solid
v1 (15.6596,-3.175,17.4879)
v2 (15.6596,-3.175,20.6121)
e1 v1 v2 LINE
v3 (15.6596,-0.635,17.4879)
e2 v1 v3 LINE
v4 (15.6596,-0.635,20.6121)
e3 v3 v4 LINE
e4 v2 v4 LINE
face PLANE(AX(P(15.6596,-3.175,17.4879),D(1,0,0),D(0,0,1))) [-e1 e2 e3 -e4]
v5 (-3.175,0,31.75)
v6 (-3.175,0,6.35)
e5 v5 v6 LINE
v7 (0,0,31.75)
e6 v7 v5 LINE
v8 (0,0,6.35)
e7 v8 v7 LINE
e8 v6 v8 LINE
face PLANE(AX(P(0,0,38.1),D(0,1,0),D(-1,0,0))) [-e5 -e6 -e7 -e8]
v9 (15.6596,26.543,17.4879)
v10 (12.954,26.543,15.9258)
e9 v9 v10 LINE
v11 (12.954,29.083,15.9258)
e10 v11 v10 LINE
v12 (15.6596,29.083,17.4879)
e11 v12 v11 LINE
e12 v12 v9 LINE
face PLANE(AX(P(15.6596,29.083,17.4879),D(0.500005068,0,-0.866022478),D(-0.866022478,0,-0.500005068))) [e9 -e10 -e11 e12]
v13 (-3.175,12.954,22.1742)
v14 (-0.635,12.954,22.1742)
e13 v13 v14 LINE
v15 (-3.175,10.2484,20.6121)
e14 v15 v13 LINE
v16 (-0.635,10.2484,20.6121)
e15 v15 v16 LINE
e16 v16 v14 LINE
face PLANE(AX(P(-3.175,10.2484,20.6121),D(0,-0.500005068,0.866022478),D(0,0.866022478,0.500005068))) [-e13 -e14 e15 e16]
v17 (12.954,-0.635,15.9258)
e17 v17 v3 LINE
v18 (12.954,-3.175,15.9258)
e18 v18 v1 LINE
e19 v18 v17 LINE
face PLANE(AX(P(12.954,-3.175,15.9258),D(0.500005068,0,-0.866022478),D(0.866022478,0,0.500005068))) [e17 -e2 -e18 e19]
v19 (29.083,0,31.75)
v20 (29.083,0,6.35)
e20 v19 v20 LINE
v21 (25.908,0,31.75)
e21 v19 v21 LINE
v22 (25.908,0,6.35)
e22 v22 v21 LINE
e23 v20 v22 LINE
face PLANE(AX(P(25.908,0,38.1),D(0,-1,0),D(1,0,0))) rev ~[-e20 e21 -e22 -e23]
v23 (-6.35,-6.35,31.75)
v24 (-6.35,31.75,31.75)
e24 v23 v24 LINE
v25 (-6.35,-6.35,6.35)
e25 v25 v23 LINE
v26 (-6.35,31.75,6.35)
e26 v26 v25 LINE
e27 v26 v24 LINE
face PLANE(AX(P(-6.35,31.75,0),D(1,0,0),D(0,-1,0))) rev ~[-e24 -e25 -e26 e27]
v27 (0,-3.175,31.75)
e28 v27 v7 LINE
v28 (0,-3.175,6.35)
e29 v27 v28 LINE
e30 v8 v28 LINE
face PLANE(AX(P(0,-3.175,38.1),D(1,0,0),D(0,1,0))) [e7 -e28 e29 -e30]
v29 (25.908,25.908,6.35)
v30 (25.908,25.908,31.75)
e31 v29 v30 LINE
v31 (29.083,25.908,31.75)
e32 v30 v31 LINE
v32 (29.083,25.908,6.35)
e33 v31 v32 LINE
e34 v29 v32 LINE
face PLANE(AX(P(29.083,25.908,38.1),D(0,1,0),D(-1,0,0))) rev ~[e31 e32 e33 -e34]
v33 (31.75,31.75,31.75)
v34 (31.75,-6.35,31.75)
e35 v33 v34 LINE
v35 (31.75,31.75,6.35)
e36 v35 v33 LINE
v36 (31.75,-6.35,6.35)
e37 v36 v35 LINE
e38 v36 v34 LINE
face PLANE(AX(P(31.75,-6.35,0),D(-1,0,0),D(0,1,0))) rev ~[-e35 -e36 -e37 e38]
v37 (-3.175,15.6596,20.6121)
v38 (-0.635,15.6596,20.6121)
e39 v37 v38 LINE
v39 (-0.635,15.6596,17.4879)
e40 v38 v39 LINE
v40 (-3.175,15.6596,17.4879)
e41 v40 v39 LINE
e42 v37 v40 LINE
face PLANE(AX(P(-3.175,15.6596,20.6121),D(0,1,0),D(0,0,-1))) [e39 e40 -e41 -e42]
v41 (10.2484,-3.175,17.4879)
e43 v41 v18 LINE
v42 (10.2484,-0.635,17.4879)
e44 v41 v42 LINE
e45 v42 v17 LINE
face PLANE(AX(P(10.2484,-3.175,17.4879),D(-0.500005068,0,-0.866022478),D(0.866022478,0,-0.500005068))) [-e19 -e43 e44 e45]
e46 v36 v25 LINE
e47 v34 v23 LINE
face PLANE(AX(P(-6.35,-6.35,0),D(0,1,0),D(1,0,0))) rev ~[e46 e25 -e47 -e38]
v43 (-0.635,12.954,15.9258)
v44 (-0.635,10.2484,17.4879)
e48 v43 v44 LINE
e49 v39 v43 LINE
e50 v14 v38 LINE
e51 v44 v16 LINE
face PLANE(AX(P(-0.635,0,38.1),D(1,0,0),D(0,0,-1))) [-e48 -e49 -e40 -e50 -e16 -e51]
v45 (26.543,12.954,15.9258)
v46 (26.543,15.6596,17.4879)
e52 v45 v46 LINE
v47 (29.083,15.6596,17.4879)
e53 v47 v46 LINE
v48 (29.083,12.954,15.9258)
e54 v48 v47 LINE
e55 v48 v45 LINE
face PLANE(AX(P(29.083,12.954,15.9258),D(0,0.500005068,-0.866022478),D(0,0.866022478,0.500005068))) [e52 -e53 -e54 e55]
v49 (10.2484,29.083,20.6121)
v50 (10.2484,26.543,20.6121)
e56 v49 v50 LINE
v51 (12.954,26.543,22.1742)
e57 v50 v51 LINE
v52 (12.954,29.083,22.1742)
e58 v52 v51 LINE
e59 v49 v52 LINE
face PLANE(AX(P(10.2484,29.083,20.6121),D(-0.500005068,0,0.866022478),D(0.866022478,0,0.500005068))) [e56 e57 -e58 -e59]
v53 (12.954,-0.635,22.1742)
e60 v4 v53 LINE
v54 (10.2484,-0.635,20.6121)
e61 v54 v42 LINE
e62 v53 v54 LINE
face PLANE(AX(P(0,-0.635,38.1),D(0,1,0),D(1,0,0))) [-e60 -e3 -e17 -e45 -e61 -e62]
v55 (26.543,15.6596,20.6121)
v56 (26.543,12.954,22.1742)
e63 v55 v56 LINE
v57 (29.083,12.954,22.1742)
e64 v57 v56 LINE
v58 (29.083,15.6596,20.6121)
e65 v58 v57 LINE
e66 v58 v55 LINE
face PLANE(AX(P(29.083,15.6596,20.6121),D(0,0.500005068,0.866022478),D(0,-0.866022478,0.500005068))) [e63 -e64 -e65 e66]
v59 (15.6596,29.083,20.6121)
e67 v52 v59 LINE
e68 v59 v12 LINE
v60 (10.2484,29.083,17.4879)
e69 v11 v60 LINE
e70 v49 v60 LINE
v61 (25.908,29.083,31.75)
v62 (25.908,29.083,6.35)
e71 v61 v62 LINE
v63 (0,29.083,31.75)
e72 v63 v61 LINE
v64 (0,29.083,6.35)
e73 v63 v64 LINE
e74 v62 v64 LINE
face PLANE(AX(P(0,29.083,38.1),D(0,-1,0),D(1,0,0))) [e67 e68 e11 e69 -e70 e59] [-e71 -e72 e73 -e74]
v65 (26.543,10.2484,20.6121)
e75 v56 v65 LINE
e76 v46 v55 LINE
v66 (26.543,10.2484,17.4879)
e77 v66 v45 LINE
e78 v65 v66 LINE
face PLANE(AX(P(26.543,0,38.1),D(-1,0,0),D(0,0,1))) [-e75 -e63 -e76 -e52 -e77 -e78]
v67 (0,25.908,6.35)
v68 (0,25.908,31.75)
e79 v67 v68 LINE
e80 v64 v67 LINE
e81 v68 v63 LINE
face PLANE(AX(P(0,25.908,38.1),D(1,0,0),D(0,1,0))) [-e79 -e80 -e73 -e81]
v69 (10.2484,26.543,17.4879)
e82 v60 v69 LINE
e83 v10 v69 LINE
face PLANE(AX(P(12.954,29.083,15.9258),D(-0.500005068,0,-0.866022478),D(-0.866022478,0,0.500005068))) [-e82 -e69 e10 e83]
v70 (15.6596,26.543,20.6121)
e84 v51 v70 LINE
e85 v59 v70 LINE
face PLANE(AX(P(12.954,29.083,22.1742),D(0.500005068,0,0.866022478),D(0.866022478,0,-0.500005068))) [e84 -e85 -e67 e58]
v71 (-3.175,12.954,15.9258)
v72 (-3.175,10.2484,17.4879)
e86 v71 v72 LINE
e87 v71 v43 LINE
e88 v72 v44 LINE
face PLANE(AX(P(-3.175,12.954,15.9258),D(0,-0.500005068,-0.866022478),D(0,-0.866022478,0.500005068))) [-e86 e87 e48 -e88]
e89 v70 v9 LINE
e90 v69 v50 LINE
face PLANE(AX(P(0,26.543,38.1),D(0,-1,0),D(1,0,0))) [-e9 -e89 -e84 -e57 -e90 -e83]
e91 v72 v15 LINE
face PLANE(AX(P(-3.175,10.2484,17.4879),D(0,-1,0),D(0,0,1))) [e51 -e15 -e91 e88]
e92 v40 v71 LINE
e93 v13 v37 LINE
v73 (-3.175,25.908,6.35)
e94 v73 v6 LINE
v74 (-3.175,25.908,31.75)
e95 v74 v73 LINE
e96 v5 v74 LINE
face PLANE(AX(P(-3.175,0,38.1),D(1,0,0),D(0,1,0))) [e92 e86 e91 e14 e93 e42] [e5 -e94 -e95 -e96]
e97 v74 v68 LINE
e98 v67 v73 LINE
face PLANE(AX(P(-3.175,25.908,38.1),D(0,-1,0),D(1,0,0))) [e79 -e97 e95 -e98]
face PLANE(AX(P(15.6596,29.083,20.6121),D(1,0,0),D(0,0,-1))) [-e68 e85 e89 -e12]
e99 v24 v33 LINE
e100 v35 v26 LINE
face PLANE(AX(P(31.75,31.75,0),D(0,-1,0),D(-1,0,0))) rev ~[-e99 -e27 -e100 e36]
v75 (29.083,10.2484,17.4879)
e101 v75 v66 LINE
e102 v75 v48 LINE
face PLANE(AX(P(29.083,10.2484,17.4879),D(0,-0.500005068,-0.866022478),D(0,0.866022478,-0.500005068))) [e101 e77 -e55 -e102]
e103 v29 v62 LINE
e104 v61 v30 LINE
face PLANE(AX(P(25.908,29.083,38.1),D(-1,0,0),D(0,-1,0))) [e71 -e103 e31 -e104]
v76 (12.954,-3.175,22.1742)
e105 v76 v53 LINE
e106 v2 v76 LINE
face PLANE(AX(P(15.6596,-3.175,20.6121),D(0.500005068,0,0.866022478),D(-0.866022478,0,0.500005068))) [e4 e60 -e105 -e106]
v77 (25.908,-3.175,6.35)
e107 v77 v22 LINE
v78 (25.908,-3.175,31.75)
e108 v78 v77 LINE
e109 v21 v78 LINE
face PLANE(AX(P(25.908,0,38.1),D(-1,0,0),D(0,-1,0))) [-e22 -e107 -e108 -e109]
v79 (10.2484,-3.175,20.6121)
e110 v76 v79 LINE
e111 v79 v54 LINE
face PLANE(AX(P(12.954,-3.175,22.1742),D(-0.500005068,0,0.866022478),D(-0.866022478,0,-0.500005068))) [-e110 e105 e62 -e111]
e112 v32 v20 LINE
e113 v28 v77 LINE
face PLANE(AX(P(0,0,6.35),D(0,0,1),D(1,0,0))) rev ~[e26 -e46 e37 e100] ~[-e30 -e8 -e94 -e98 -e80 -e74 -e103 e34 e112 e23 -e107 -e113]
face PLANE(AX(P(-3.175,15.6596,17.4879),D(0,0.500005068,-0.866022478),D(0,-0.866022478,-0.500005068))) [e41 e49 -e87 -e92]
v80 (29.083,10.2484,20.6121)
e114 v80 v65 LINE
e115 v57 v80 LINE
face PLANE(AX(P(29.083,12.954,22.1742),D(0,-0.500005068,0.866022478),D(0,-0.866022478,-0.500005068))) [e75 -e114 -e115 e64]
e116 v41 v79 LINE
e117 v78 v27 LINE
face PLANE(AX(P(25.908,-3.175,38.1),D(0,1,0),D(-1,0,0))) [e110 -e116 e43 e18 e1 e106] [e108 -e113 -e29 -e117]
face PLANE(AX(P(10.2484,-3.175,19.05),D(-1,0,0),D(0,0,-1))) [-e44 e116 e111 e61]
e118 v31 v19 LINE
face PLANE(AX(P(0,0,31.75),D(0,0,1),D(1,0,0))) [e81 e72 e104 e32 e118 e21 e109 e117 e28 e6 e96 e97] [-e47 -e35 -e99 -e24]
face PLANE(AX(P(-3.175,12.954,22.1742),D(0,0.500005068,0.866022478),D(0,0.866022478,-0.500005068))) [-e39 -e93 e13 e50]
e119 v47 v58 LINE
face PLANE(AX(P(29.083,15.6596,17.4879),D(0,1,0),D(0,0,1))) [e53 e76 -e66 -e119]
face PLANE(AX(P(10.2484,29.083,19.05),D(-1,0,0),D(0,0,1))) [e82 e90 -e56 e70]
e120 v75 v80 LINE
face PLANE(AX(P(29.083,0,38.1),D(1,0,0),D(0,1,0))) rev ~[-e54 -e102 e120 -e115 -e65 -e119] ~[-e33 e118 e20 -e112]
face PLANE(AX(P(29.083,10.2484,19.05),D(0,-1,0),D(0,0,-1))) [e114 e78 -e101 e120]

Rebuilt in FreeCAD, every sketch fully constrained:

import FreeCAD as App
import Part
import Sketcher
from FreeCAD import Vector
Q = App.Units.Quantity


def add_polygon(sketch, points):
    """Adds a closed chain of lines whose ends are joined by coincident constraints."""
    first, n = sketch.GeometryCount, len(points)
    for a, b in zip(points, points[1:] + points[:1]):
        sketch.addGeometry(Part.LineSegment(App.Vector(*a, 0), App.Vector(*b, 0)), False)
    for i in range(n):
        sketch.addConstraint(Sketcher.Constraint("Coincident", first + i, 2, first + (i + 1) % n, 1))

doc = App.newDocument("Part")
body = doc.addObject("PartDesign::Body", "Body")

# Sketch on XY plane
sketch1 = body.newObject("Sketcher::SketchObject", "Sketch")
sketch1.AttachmentSupport = (doc.getObject("XY_Plane"), [""])
sketch1.MapMode = "FlatFace"
add_polygon(sketch1, [(-6, 32), (-6, -6), (32, -6), (32, 32)])  # lines 0-3
add_polygon(sketch1, [(26, 0), (0, 0), (0, 26), (26, 26)])  # lines 4-7
sketch1.addConstraint([
    Sketcher.Constraint("Vertical", 0),
    Sketcher.Constraint("Horizontal", 1),
    Sketcher.Constraint("Vertical", 2),
    Sketcher.Constraint("Horizontal", 3),
    Sketcher.Constraint("Horizontal", 4),
    Sketcher.Constraint("Vertical", 5),
    Sketcher.Constraint("Horizontal", 6),
    Sketcher.Constraint("Vertical", 7),
    Sketcher.Constraint("Coincident", 4, 2, -1, 1),
    Sketcher.Constraint("Equal", 3, 0),
    Sketcher.Constraint("Equal", 6, 5),
    Sketcher.Constraint("DistanceX", 1, 1, 1, 2, Q("1.5 in")),
    Sketcher.Constraint("DistanceX", 4, 2, 4, 1, Q("1.02 in")),
    Sketcher.Constraint("DistanceX", 0, 2, -1, 1, Q("0.25 in")),
    Sketcher.Constraint("DistanceY", 0, 2, -1, 1, Q("0.25 in")),
])
pad1 = body.newObject("PartDesign::Pad", "Pad")
pad1.Profile = sketch1
pad1.Length = Q("1.5 in")

# Sketch on XY plane
sketch2 = body.newObject("Sketcher::SketchObject", "Sketch001")
sketch2.AttachmentSupport = (doc.getObject("XY_Plane"), [""])
sketch2.MapMode = "FlatFace"
sketch2.AttachmentOffset = App.Placement(Vector(0, 0, 1.5 * 25.4), App.Rotation())
add_polygon(sketch2, [(25.9, 0), (0, 0), (0, -3.2), (25.9, -3.2)])  # lines 0-3
add_polygon(sketch2, [(-3.2, 0), (0, 0), (0, 25.9), (-3.2, 25.9)])  # lines 4-7
add_polygon(sketch2, [(25.9, 25.9), (25.9, 0), (29.1, 0), (29.1, 25.9)])  # lines 8-11
add_polygon(sketch2, [(0, 29.1), (0, 25.9), (25.9, 25.9), (25.9, 29.1)])  # lines 12-15
sketch2.addConstraint([
    Sketcher.Constraint("Horizontal", 0),
    Sketcher.Constraint("Vertical", 1),
    Sketcher.Constraint("Horizontal", 2),
    Sketcher.Constraint("Vertical", 3),
    Sketcher.Constraint("Horizontal", 4),
    Sketcher.Constraint("Vertical", 5),
    Sketcher.Constraint("Horizontal", 6),
    Sketcher.Constraint("Vertical", 7),
    Sketcher.Constraint("Vertical", 8),
    Sketcher.Constraint("Horizontal", 9),
    Sketcher.Constraint("Vertical", 10),
    Sketcher.Constraint("Horizontal", 11),
    Sketcher.Constraint("Vertical", 12),
    Sketcher.Constraint("Horizontal", 13),
    Sketcher.Constraint("Vertical", 14),
    Sketcher.Constraint("Horizontal", 15),
    Sketcher.Constraint("Coincident", 0, 2, -1, 1),
    Sketcher.Constraint("Coincident", 4, 2, -1, 1),
    Sketcher.Constraint("Coincident", 8, 2, 3, 2),
    Sketcher.Constraint("Coincident", 12, 2, 5, 2),
    Sketcher.Constraint("Coincident", 13, 2, 11, 2),
    Sketcher.Constraint("Equal", 6, 9),
    Sketcher.Constraint("Equal", 11, 1),
    Sketcher.Constraint("Equal", 15, 5),
    Sketcher.Constraint("Equal", 3, 12),
    Sketcher.Constraint("DistanceX", 4, 1, 4, 2, Q("0.125 in")),
    Sketcher.Constraint("DistanceX", 0, 2, 0, 1, Q("1.02 in")),
])
pocket1 = body.newObject("PartDesign::Pocket", "Pocket")
pocket1.Profile = sketch2
pocket1.Length = Q("1.5 in")

# Sketch on XZ plane
sketch3 = body.newObject("Sketcher::SketchObject", "Sketch002")
sketch3.AttachmentSupport = (doc.getObject("XZ_Plane"), [""])
sketch3.MapMode = "FlatFace"
sketch3.AttachmentOffset = App.Placement(Vector(0, 0, -1.145 * 25.4), App.Rotation())
add_polygon(sketch3, [(10.2, 20.6), (10.2, 17.5), (13, 15.9), (15.7, 17.5), (15.7, 20.6), (13, 22.2)])  # lines 0-5
sketch3.addConstraint([
    Sketcher.Constraint("Vertical", 0),
    Sketcher.Constraint("Vertical", 3),
    Sketcher.Constraint("Parallel", 1, 4),
    Sketcher.Constraint("Parallel", 2, 5),
    Sketcher.Constraint("Horizontal", 0, 2, 2, 2),
    Sketcher.Constraint("Horizontal", 3, 2, 5, 2),
    Sketcher.Constraint("Vertical", 1, 2, 4, 2),
    Sketcher.Constraint("DistanceY", 0, 2, 0, 1, Q("0.123 in")),
    Sketcher.Constraint("Distance", 1, Q("0.123 in")),
    Sketcher.Constraint("Angle", 1, Q("-30.0003 deg")),
    Sketcher.Constraint("DistanceX", -1, 1, 1, 2, Q("0.51 in")),
    Sketcher.Constraint("DistanceY", -1, 1, 1, 2, Q("0.627 in")),
])
pad2 = body.newObject("PartDesign::Pad", "Pad001")
pad2.Profile = sketch3
pad2.Length = Q("0.1 in")

# Sketch on YZ plane
sketch4 = body.newObject("Sketcher::SketchObject", "Sketch003")
sketch4.AttachmentSupport = (doc.getObject("YZ_Plane"), [""])
sketch4.MapMode = "FlatFace"
sketch4.AttachmentOffset = App.Placement(Vector(0, 0, -0.125 * 25.4), App.Rotation())
add_polygon(sketch4, [(10.2, 17.5), (13, 15.9), (15.7, 17.5), (15.7, 20.6), (13, 22.2), (10.2, 20.6)])  # lines 0-5
sketch4.addConstraint([
    Sketcher.Constraint("Vertical", 2),
    Sketcher.Constraint("Vertical", 5),
    Sketcher.Constraint("Parallel", 0, 3),
    Sketcher.Constraint("Parallel", 1, 4),
    Sketcher.Constraint("Horizontal", 2, 2, 4, 2),
    Sketcher.Constraint("Horizontal", 1, 2, 5, 2),
    Sketcher.Constraint("Vertical", 0, 2, 3, 2),
    Sketcher.Constraint("DistanceY", 2, 1, 2, 2, Q("0.123 in")),
    Sketcher.Constraint("DistanceX", -1, 1, 0, 2, Q("0.51 in")),
    Sketcher.Constraint("Distance", 0, Q("0.123 in")),
    Sketcher.Constraint("Angle", 0, Q("-30.0003 deg")),
    Sketcher.Constraint("DistanceY", -1, 1, 0, 2, Q("0.627 in")),
])
pad3 = body.newObject("PartDesign::Pad", "Pad002")
pad3.Profile = sketch4
pad3.Length = Q("0.1 in")

# Sketch on XZ plane
sketch5 = body.newObject("Sketcher::SketchObject", "Sketch004")
sketch5.AttachmentSupport = (doc.getObject("XZ_Plane"), [""])
sketch5.MapMode = "FlatFace"
sketch5.AttachmentOffset = App.Placement(Vector(0, 0, 0.125 * 25.4), App.Rotation())
add_polygon(sketch5, [(10.2, 17.5), (10.2, 20.6), (13, 22.2), (15.7, 20.6), (15.7, 17.5), (13, 15.9)])  # lines 0-5
sketch5.addConstraint([
    Sketcher.Constraint("Vertical", 0),
    Sketcher.Constraint("Vertical", 3),
    Sketcher.Constraint("Parallel", 1, 4),
    Sketcher.Constraint("Parallel", 2, 5),
    Sketcher.Constraint("Horizontal", 0, 2, 2, 2),
    Sketcher.Constraint("Horizontal", 3, 2, 5, 2),
    Sketcher.Constraint("Vertical", 1, 2, 4, 2),
    Sketcher.Constraint("DistanceY", 0, 1, 0, 2, Q("0.123 in")),
    Sketcher.Constraint("DistanceX", -1, 1, 1, 2, Q("0.51 in")),
    Sketcher.Constraint("Distance", 1, Q("0.123 in")),
    Sketcher.Constraint("Angle", 1, Q("30.0003 deg")),
    Sketcher.Constraint("DistanceY", -1, 1, 1, 2, Q("0.873 in")),
])
pad4 = body.newObject("PartDesign::Pad", "Pad003")
pad4.Profile = sketch5
pad4.Length = Q("0.1 in")
pad4.Reversed = True

# Sketch on YZ plane
sketch6 = body.newObject("Sketcher::SketchObject", "Sketch005")
sketch6.AttachmentSupport = (doc.getObject("YZ_Plane"), [""])
sketch6.MapMode = "FlatFace"
sketch6.AttachmentOffset = App.Placement(Vector(0, 0, 1.145 * 25.4), App.Rotation())
add_polygon(sketch6, [(10.2, 17.5), (10.2, 20.6), (13, 22.2), (15.7, 20.6), (15.7, 17.5), (13, 15.9)])  # lines 0-5
sketch6.addConstraint([
    Sketcher.Constraint("Vertical", 0),
    Sketcher.Constraint("Vertical", 3),
    Sketcher.Constraint("Parallel", 1, 4),
    Sketcher.Constraint("Parallel", 2, 5),
    Sketcher.Constraint("Horizontal", 0, 2, 2, 2),
    Sketcher.Constraint("Horizontal", 3, 2, 5, 2),
    Sketcher.Constraint("Vertical", 1, 2, 4, 2),
    Sketcher.Constraint("DistanceY", 0, 1, 0, 2, Q("0.123 in")),
    Sketcher.Constraint("DistanceX", -1, 1, 1, 2, Q("0.51 in")),
    Sketcher.Constraint("Distance", 1, Q("0.123 in")),
    Sketcher.Constraint("Angle", 1, Q("30.0003 deg")),
    Sketcher.Constraint("DistanceY", -1, 1, 1, 2, Q("0.873 in")),
])
pad5 = body.newObject("PartDesign::Pad", "Pad004")
pad5.Profile = sketch6
pad5.Length = Q("0.1 in")
pad5.Reversed = True

# Sketch on XY plane
sketch7 = body.newObject("Sketcher::SketchObject", "Sketch006")
sketch7.AttachmentSupport = (doc.getObject("XY_Plane"), [""])
sketch7.MapMode = "FlatFace"
sketch7.AttachmentOffset = App.Placement(Vector(0, 0, 1.5 * 25.4), App.Rotation())
add_polygon(sketch7, [(-6.3, 31.8), (-6.3, -6.3), (31.8, -6.3), (31.8, 31.8)])  # lines 0-3
add_polygon(sketch7, [(-3.2, 25.9), (0, 25.9), (0, 29.1), (25.9, 29.1), (25.9, 25.9), (29.1, 25.9), (29.1, 0), (25.9, 0), (25.9, -3.2), (0, -3.2), (0, 0), (-3.2, 0)])  # lines 4-15
sketch7.addConstraint([
    Sketcher.Constraint("Vertical", 0),
    Sketcher.Constraint("Horizontal", 1),
    Sketcher.Constraint("Vertical", 2),
    Sketcher.Constraint("Horizontal", 3),
    Sketcher.Constraint("Horizontal", 4),
    Sketcher.Constraint("Vertical", 5),
    Sketcher.Constraint("Horizontal", 6),
    Sketcher.Constraint("Vertical", 7),
    Sketcher.Constraint("Horizontal", 8),
    Sketcher.Constraint("Vertical", 9),
    Sketcher.Constraint("Horizontal", 10),
    Sketcher.Constraint("Vertical", 11),
    Sketcher.Constraint("Horizontal", 12),
    Sketcher.Constraint("Vertical", 13),
    Sketcher.Constraint("Horizontal", 14),
    Sketcher.Constraint("Vertical", 15),
    Sketcher.Constraint("Coincident", 13, 2, -1, 1),
    Sketcher.Constraint("PointOnObject", 4, 2, -2),
    Sketcher.Constraint("PointOnObject", 9, 2, -1),
    Sketcher.Constraint("Horizontal", 4, 2, 7, 2),
    Sketcher.Constraint("Vertical", 7, 2, 10, 2),
    Sketcher.Constraint("Equal", 4, 8),
    Sketcher.Constraint("Equal", 3, 0),
    Sketcher.Constraint("Equal", 14, 5),
    Sketcher.Constraint("Equal", 12, 9),
    Sketcher.Constraint("Equal", 7, 11),
    Sketcher.Constraint("DistanceX", 1, 1, 1, 2, Q("1.5 in")),
    Sketcher.Constraint("DistanceX", 6, 1, 6, 2, Q("1.02 in")),
    Sketcher.Constraint("DistanceX", 4, 1, 4, 2, Q("0.125 in")),
    Sketcher.Constraint("DistanceX", 0, 2, -1, 1, Q("0.25 in")),
    Sketcher.Constraint("DistanceY", 0, 2, -1, 1, Q("0.25 in")),
])
pocket2 = body.newObject("PartDesign::Pocket", "Pocket001")
pocket2.Profile = sketch7
pocket2.Length = Q("0.25 in")

# Sketch on XY plane
sketch8 = body.newObject("Sketcher::SketchObject", "Sketch007")
sketch8.AttachmentSupport = (doc.getObject("XY_Plane"), [""])
sketch8.MapMode = "FlatFace"
add_polygon(sketch8, [(-6, 32), (-6, -6), (32, -6), (32, 32)])  # lines 0-3
add_polygon(sketch8, [(26, 0), (0, 0), (0, 26), (26, 26)])  # lines 4-7
sketch8.addConstraint([
    Sketcher.Constraint("Vertical", 0),
    Sketcher.Constraint("Horizontal", 1),
    Sketcher.Constraint("Vertical", 2),
    Sketcher.Constraint("Horizontal", 3),
    Sketcher.Constraint("Horizontal", 4),
    Sketcher.Constraint("Vertical", 5),
    Sketcher.Constraint("Horizontal", 6),
    Sketcher.Constraint("Vertical", 7),
    Sketcher.Constraint("Coincident", 4, 2, -1, 1),
    Sketcher.Constraint("Equal", 3, 0),
    Sketcher.Constraint("Equal", 6, 5),
    Sketcher.Constraint("DistanceX", 1, 1, 1, 2, Q("1.5 in")),
    Sketcher.Constraint("DistanceX", 4, 2, 4, 1, Q("1.02 in")),
    Sketcher.Constraint("DistanceX", 0, 2, -1, 1, Q("0.25 in")),
    Sketcher.Constraint("DistanceY", 0, 2, -1, 1, Q("0.25 in")),
])
pocket3 = body.newObject("PartDesign::Pocket", "Pocket002")
pocket3.Profile = sketch8
pocket3.Length = Q("0.25 in")
pocket3.Reversed = True

doc.recompute()
